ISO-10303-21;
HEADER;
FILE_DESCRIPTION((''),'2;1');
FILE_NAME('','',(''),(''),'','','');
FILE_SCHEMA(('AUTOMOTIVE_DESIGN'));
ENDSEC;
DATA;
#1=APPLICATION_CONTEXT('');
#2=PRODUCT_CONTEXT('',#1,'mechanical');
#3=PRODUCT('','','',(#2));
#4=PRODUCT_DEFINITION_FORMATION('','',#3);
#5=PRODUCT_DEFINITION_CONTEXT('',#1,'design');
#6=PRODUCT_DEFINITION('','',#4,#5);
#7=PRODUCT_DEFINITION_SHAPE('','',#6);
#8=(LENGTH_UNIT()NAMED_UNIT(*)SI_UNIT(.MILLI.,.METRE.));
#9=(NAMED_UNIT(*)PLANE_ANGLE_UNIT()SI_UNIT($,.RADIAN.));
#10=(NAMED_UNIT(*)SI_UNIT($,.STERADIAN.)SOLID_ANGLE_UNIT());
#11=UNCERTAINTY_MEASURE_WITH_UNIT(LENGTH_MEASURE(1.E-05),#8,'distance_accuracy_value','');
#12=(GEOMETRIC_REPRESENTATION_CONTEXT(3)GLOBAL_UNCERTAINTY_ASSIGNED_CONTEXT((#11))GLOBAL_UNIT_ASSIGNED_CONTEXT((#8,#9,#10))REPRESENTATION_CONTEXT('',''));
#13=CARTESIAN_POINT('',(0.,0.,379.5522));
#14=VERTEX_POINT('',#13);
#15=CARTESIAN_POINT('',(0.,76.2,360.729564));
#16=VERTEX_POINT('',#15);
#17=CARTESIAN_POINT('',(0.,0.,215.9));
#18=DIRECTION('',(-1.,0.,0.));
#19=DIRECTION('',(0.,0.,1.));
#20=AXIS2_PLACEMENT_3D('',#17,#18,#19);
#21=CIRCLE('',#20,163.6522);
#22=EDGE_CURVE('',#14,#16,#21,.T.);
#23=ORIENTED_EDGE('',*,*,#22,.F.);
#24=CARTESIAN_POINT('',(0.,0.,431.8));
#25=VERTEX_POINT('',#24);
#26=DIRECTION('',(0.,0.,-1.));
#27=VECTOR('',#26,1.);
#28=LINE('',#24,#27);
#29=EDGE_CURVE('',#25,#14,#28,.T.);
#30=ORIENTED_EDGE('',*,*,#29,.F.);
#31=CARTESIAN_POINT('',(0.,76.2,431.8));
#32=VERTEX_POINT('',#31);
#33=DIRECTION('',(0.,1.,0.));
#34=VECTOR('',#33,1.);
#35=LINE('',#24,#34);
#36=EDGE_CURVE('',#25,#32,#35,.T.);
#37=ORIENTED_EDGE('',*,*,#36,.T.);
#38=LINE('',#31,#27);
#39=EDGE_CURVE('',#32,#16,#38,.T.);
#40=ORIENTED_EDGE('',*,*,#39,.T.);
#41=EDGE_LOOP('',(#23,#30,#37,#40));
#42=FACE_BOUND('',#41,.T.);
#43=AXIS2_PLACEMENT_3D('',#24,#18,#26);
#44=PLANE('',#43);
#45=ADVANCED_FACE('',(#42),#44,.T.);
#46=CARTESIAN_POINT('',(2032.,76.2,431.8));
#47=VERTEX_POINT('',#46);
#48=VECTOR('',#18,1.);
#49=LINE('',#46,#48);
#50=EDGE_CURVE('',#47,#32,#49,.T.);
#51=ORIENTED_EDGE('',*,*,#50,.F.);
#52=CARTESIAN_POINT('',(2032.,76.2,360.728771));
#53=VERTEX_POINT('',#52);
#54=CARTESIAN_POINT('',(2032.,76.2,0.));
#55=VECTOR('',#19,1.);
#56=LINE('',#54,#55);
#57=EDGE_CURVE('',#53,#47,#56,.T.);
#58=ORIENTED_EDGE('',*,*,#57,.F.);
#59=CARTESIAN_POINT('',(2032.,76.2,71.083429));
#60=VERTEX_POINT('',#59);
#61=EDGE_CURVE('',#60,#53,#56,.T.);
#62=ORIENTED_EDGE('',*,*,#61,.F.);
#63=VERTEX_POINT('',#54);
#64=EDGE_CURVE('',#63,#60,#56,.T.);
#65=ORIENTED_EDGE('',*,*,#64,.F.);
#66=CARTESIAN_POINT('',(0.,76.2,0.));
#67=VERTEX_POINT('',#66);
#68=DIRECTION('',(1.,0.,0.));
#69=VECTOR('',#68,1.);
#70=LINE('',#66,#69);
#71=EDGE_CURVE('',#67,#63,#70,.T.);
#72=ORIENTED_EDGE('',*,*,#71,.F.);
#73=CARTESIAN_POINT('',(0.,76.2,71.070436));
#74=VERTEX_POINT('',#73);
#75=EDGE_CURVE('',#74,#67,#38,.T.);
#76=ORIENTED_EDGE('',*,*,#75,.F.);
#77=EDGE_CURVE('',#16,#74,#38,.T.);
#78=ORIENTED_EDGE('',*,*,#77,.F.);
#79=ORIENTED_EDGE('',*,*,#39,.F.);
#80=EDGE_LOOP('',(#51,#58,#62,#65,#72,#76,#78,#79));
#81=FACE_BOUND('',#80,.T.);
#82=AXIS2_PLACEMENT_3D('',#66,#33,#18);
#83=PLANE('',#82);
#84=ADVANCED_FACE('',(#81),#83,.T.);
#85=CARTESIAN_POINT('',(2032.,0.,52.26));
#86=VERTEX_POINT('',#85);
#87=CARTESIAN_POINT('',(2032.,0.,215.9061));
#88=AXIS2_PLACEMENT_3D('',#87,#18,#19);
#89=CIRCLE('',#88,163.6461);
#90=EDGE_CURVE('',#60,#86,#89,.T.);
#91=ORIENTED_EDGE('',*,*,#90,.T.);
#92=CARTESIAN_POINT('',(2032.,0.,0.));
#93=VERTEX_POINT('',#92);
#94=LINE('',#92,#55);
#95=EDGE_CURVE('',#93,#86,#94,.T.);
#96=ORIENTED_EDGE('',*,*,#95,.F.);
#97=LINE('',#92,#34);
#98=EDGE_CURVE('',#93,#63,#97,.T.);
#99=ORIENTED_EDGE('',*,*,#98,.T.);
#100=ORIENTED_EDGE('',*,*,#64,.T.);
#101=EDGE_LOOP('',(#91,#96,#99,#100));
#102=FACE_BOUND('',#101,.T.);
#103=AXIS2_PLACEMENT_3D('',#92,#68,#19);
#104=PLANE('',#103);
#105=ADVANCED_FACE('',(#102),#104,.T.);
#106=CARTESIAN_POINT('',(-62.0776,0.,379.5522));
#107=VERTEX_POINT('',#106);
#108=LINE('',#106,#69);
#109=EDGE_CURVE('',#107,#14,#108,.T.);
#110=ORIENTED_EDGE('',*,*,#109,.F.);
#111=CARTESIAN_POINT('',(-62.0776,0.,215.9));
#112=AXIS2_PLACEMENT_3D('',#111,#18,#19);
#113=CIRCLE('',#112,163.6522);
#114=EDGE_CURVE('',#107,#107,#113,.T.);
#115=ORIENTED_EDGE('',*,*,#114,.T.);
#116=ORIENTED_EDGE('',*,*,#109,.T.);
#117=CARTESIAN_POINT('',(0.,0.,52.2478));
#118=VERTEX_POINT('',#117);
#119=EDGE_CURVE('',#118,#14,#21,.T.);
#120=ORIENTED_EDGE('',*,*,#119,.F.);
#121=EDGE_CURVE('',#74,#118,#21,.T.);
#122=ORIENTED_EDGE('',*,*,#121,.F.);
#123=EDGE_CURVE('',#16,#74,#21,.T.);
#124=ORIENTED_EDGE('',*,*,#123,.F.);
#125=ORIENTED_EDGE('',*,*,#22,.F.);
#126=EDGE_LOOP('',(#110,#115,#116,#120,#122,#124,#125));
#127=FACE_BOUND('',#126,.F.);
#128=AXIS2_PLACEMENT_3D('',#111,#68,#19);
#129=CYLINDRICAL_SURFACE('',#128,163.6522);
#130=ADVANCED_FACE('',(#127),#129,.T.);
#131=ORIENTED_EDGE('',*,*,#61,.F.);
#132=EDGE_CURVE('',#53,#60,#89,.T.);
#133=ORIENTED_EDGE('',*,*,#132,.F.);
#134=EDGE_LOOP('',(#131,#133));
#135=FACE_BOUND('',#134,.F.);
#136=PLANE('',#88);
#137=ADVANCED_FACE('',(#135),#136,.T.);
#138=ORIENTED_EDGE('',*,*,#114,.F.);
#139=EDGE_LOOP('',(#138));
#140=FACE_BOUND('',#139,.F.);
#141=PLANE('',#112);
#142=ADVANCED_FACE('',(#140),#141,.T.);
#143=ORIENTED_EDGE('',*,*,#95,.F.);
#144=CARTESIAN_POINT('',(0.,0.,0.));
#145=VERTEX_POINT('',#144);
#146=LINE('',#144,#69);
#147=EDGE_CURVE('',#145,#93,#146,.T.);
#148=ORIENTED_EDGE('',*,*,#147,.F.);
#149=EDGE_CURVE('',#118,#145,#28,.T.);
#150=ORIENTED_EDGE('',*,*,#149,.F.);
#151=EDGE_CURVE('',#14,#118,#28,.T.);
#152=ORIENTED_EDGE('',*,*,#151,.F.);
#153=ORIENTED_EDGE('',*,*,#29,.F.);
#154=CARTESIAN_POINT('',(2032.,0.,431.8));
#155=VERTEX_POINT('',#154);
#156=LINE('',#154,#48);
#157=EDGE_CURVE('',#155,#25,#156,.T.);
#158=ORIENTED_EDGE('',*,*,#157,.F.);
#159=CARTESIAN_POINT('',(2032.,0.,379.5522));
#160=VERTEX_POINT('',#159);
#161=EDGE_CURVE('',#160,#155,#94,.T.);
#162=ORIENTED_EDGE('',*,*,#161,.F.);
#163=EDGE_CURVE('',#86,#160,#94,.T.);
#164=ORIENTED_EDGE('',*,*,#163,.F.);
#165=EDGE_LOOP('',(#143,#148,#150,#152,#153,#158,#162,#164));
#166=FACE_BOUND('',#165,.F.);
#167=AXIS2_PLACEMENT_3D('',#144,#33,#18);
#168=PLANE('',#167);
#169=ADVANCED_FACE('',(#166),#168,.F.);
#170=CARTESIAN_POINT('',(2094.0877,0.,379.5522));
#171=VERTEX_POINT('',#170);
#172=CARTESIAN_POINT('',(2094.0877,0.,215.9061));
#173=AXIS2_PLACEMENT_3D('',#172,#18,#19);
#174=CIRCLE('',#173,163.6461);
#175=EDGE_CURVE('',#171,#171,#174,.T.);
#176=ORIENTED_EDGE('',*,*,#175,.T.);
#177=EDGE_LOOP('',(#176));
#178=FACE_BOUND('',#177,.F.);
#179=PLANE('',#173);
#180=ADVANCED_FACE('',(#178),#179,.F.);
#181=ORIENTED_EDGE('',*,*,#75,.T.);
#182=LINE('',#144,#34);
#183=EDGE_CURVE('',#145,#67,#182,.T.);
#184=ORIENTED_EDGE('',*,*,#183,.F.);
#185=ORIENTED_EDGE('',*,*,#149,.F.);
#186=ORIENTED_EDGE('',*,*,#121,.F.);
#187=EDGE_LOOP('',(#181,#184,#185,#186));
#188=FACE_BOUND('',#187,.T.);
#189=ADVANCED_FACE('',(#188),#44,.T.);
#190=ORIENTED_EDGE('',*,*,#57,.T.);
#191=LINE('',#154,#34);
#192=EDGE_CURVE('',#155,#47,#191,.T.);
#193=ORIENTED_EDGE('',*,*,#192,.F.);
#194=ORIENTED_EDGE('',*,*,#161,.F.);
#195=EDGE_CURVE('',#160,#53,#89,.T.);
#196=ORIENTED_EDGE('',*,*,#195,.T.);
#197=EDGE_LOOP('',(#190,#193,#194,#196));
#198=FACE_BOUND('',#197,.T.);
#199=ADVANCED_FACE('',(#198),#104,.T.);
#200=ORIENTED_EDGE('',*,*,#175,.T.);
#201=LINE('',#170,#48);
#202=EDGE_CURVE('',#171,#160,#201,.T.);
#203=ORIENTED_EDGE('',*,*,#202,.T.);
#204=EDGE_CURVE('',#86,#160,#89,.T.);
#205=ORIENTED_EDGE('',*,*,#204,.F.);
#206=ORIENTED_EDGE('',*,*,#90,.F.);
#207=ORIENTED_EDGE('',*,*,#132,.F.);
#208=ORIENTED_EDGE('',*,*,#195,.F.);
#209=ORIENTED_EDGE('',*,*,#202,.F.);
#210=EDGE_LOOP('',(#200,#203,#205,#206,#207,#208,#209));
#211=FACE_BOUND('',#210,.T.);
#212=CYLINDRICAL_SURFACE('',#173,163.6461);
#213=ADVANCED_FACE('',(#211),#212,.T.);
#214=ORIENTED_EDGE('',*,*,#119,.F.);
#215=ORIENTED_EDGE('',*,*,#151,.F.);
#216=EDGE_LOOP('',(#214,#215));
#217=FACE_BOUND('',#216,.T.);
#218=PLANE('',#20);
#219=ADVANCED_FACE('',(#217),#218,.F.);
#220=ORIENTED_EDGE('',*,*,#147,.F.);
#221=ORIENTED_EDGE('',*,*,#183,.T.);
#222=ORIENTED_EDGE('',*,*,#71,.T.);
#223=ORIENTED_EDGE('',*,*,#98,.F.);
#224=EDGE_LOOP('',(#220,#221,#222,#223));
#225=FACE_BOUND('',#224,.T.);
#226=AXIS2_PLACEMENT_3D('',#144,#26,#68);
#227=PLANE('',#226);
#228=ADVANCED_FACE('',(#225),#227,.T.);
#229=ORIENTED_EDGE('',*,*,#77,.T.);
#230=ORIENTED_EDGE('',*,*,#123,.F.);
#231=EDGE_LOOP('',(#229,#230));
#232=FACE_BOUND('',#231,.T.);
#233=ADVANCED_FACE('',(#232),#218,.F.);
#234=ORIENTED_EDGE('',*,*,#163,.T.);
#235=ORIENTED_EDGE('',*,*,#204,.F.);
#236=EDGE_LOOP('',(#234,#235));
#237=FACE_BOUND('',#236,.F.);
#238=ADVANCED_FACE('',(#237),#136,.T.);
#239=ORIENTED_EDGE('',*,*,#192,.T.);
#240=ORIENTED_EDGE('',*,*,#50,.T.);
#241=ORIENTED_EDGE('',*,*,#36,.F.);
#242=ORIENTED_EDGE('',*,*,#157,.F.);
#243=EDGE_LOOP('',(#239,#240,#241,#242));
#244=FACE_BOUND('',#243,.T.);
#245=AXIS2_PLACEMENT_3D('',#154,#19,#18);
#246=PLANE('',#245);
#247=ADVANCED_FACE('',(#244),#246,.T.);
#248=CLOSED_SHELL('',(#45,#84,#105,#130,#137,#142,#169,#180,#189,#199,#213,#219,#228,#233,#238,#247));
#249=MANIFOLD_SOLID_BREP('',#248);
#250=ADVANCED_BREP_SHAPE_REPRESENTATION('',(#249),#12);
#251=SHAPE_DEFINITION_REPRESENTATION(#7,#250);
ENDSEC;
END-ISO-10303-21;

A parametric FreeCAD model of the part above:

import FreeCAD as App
import Part
import Sketcher

V = App.Vector
Q = App.Units.Quantity

doc = App.newDocument("Part")
params = doc.addObject("Spreadsheet::Sheet", "Params")
for row, (alias, value) in enumerate([
    ("sketch1_width", "80 in"),
    ("sketch1_height", "17 in"),
    ("pad1_length", "3 in"),
    ("revolution_angle", "360 deg"),
    ("sketch3_width", "2.444 in"),
    ("sketch3_height", "6.443 in"),
    ("revolution2_angle", "360 deg"),
], start=1):
    params.set(f"A{row}", alias)
    params.set(f"B{row}", "=" + value)
    params.setAlias(f"B{row}", alias)

body = doc.addObject("PartDesign::Body", "Body")

sketch1 = body.newObject("Sketcher::SketchObject", "Sketch")
sketch1.AttachmentSupport = (doc.getObject("XZ_Plane"), [""])
sketch1.MapMode = "FlatFace"
sketch1.addGeometry(Part.LineSegment(V(2032, 0, 0), V(0, 0, 0)), False)
sketch1.addGeometry(Part.LineSegment(V(0, 0, 0), V(0, 432, 0)), False)
sketch1.addGeometry(Part.LineSegment(V(0, 432, 0), V(2032, 432, 0)), False)
sketch1.addGeometry(Part.LineSegment(V(2032, 432, 0), V(2032, 0, 0)), False)
sketch1.addConstraint(Sketcher.Constraint("Coincident", 0, 2, 1, 1))
sketch1.addConstraint(Sketcher.Constraint("Coincident", 1, 2, 2, 1))
sketch1.addConstraint(Sketcher.Constraint("Coincident", 2, 2, 3, 1))
sketch1.addConstraint(Sketcher.Constraint("Coincident", 3, 2, 0, 1))
sketch1.addConstraint(Sketcher.Constraint("Horizontal", 0))
sketch1.addConstraint(Sketcher.Constraint("Vertical", 1))
sketch1.addConstraint(Sketcher.Constraint("Horizontal", 2))
sketch1.addConstraint(Sketcher.Constraint("Vertical", 3))
sketch1.addConstraint(Sketcher.Constraint("Coincident", 0, 2, -1, 1))
sketch1.addConstraint(Sketcher.Constraint("DistanceX", 0, 2, 0, 1, Q("80 in")))
sketch1.addConstraint(Sketcher.Constraint("DistanceY", 1, 1, 1, 2, Q("17 in")))
sketch1.setExpression("Constraints[9]", "Params.sketch1_width")
sketch1.setExpression("Constraints[10]", "Params.sketch1_height")
pad1 = body.newObject("PartDesign::Pad", "Pad")
pad1.Profile = sketch1
pad1.setExpression("Length", "Params.pad1_length")
pad1.Reversed = True

sketch2 = body.newObject("Sketcher::SketchObject", "Sketch001")
sketch2.AttachmentSupport = (doc.getObject("XZ_Plane"), [""])
sketch2.MapMode = "FlatFace"
sketch2.addGeometry(Part.LineSegment(V(2094, 216, 0), V(2094, 380, 0)), False)
sketch2.addGeometry(Part.LineSegment(V(2094, 380, 0), V(2032, 380, 0)), False)
sketch2.addGeometry(Part.LineSegment(V(2032, 380, 0), V(2032, 216, 0)), False)
sketch2.addGeometry(Part.LineSegment(V(2032, 216, 0), V(2094, 216, 0)), False)
sketch2.addGeometry(Part.LineSegment(V(2094, 216, 0), V(2032, 216, 0)), True)
sketch2.addConstraint(Sketcher.Constraint("Coincident", 0, 2, 1, 1))
sketch2.addConstraint(Sketcher.Constraint("Coincident", 1, 2, 2, 1))
sketch2.addConstraint(Sketcher.Constraint("Coincident", 2, 2, 3, 1))
sketch2.addConstraint(Sketcher.Constraint("Coincident", 3, 2, 0, 1))
sketch2.addConstraint(Sketcher.Constraint("Vertical", 0))
sketch2.addConstraint(Sketcher.Constraint("Horizontal", 1))
sketch2.addConstraint(Sketcher.Constraint("Vertical", 2))
sketch2.addConstraint(Sketcher.Constraint("Horizontal", 3))
sketch2.addConstraint(Sketcher.Constraint("Horizontal", 4))
sketch2.addConstraint(Sketcher.Constraint("Coincident", 4, 1, 3, 2))
sketch2.addConstraint(Sketcher.Constraint("Vertical", 1, 2, 4, 2))
sketch2.addConstraint(Sketcher.Constraint("DistanceX", -1, 1, 1, 2, Q("80 in")))
sketch2.addConstraint(Sketcher.Constraint("DistanceX", 1, 2, 1, 1, Q("2.4444 in")))
sketch2.addConstraint(Sketcher.Constraint("DistanceY", -1, 1, 0, 2, Q("14.943 in")))
sketch2.addConstraint(Sketcher.Constraint("DistanceY", 0, 1, 0, 2, 163.646))
revolution = body.newObject("PartDesign::Revolution", "Revolution")
revolution.Profile = sketch2
revolution.ReferenceAxis = (sketch2, ["Axis0"])
revolution.setExpression("Angle", "Params.revolution_angle")

sketch3 = body.newObject("Sketcher::SketchObject", "Sketch002")
sketch3.AttachmentSupport = (doc.getObject("XZ_Plane"), [""])
sketch3.MapMode = "FlatFace"
sketch3.addGeometry(Part.LineSegment(V(-62, 216, 0), V(0, 216, 0)), False)
sketch3.addGeometry(Part.LineSegment(V(0, 216, 0), V(0, 380, 0)), False)
sketch3.addGeometry(Part.LineSegment(V(0, 380, 0), V(-62, 380, 0)), False)
sketch3.addGeometry(Part.LineSegment(V(-62, 380, 0), V(-62, 216, 0)), False)
sketch3.addGeometry(Part.LineSegment(V(0, 216, 0), V(-62, 216, 0)), True)
sketch3.addConstraint(Sketcher.Constraint("Coincident", 0, 2, 1, 1))
sketch3.addConstraint(Sketcher.Constraint("Coincident", 1, 2, 2, 1))
sketch3.addConstraint(Sketcher.Constraint("Coincident", 2, 2, 3, 1))
sketch3.addConstraint(Sketcher.Constraint("Coincident", 3, 2, 0, 1))
sketch3.addConstraint(Sketcher.Constraint("Horizontal", 0))
sketch3.addConstraint(Sketcher.Constraint("Vertical", 1))
sketch3.addConstraint(Sketcher.Constraint("Horizontal", 2))
sketch3.addConstraint(Sketcher.Constraint("Vertical", 3))
sketch3.addConstraint(Sketcher.Constraint("Horizontal", 4))
sketch3.addConstraint(Sketcher.Constraint("Coincident", 4, 1, 0, 2))
sketch3.addConstraint(Sketcher.Constraint("PointOnObject", 0, 2, -2))
sketch3.addConstraint(Sketcher.Constraint("Vertical", 2, 2, 4, 2))
sketch3.addConstraint(Sketcher.Constraint("DistanceY", -1, 1, 0, 2, Q("8.5 in")))
sketch3.addConstraint(Sketcher.Constraint("DistanceX", 0, 1, 0, 2, Q("2.444 in")))
sketch3.addConstraint(Sketcher.Constraint("DistanceY", 1, 1, 1, 2, Q("6.443 in")))
sketch3.setExpression("Constraints[13]", "Params.sketch3_width")
sketch3.setExpression("Constraints[14]", "Params.sketch3_height")
revolution2 = body.newObject("PartDesign::Revolution", "Revolution001")
revolution2.Profile = sketch3
revolution2.ReferenceAxis = (sketch3, ["Axis0"])
revolution2.setExpression("Angle", "Params.revolution2_angle")

doc.recompute()
